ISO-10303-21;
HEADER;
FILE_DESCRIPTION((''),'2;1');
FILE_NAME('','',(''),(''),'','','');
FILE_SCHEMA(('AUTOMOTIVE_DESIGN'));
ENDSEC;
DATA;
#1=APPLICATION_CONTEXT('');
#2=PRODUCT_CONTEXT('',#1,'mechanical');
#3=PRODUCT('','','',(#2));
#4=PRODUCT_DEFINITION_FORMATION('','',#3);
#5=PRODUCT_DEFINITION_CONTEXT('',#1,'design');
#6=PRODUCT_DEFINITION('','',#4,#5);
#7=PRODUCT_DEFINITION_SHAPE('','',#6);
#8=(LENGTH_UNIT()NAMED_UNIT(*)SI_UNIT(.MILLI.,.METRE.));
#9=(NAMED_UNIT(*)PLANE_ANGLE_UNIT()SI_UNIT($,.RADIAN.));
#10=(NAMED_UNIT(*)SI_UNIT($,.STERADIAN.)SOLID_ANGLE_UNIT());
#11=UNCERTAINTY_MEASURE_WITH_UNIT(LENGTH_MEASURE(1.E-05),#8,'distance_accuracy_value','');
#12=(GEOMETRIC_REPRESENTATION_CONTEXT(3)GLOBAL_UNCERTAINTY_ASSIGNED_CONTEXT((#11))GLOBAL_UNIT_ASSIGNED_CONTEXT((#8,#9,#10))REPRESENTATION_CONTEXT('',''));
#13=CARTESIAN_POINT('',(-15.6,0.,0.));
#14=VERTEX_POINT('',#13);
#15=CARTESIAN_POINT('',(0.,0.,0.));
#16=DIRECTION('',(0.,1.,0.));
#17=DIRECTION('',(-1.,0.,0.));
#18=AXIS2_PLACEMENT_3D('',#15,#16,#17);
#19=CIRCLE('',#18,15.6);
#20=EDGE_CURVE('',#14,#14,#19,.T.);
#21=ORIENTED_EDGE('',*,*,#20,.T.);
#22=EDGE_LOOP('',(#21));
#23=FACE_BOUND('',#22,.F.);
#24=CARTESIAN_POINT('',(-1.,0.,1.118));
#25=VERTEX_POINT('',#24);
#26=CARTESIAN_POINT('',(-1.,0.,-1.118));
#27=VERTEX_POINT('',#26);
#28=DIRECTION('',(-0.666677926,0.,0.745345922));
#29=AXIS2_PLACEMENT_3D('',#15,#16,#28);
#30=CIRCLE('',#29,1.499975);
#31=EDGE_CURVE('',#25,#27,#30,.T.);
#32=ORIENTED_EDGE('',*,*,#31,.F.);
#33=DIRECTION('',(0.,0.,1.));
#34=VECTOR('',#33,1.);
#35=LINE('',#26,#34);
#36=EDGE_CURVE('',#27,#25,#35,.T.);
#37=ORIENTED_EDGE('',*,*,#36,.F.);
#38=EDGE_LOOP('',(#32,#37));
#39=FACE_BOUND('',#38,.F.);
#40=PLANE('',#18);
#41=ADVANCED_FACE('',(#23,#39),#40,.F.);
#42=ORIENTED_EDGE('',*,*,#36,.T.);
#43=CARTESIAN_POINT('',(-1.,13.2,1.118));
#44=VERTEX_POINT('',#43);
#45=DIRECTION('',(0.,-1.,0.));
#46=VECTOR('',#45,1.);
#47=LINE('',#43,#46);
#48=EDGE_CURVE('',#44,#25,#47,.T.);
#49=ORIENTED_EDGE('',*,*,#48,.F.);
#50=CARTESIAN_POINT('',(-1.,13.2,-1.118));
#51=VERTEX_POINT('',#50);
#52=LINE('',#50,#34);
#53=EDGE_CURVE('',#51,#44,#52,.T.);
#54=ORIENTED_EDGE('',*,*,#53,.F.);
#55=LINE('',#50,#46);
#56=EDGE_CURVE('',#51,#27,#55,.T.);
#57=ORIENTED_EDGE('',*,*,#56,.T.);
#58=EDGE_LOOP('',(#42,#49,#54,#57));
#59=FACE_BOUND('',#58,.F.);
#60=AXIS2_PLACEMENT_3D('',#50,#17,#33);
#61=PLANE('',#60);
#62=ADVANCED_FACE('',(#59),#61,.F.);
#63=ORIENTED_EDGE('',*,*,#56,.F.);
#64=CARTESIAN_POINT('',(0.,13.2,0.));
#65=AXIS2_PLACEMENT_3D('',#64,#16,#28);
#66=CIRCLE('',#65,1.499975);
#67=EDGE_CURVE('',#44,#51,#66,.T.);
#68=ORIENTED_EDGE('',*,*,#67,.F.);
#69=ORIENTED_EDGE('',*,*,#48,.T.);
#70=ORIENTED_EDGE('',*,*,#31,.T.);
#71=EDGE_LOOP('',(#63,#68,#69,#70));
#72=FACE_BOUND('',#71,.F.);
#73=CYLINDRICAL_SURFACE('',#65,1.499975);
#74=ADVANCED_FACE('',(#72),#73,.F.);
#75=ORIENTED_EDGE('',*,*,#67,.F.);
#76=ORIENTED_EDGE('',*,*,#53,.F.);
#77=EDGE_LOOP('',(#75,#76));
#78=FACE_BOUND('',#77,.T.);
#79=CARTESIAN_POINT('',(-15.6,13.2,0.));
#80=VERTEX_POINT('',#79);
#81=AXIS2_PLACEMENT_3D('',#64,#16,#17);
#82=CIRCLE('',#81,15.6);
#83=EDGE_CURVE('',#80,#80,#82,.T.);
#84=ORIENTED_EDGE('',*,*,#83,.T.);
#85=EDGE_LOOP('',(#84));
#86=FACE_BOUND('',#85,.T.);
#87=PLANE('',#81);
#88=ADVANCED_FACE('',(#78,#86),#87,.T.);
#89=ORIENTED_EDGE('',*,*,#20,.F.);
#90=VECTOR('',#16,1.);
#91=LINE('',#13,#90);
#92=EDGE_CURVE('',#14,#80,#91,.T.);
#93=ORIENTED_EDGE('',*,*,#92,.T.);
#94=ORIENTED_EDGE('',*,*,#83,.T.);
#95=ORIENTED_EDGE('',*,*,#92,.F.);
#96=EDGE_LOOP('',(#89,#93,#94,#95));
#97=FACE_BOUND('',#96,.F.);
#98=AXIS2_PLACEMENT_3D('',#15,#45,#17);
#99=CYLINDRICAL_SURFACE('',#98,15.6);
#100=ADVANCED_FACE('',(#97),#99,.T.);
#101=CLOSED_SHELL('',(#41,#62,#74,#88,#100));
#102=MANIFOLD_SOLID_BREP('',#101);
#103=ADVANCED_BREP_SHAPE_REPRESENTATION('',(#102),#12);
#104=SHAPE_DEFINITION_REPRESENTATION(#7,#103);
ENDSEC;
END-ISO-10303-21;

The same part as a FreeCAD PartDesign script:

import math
import FreeCAD as App
import Part
import Sketcher

V = App.Vector
Q = App.Units.Quantity

doc = App.newDocument("Part")
params = doc.addObject("Spreadsheet::Sheet", "Params")
for row, (alias, value) in enumerate([
    ("sketch1_diameter", "31.2 mm"),
    ("pad1_length", "13.2 mm"),
    ("sketch2_radius", "1.5 mm"),
    ("pocket1_length", "13.2 mm"),
], start=1):
    params.set(f"A{row}", alias)
    params.set(f"B{row}", "=" + value)
    params.setAlias(f"B{row}", alias)

body = doc.addObject("PartDesign::Body", "Body")

sketch1 = body.newObject("Sketcher::SketchObject", "Sketch")
sketch1.AttachmentSupport = (doc.getObject("XZ_Plane"), [""])
sketch1.MapMode = "FlatFace"
sketch1.addGeometry(Part.Circle(V(0, 0, 0), V(0, 0, 1), 15.6), False)
sketch1.addConstraint([
    Sketcher.Constraint("Coincident", 0, 3, -1, 1),
    Sketcher.Constraint("Diameter", 0, Q("31.2 mm")),
])
sketch1.setExpression("Constraints[1]", "Params.sketch1_diameter")
pad1 = body.newObject("PartDesign::Pad", "Pad")
pad1.Profile = sketch1
pad1.setExpression("Length", "Params.pad1_length")
pad1.Reversed = True

sketch2 = body.newObject("Sketcher::SketchObject", "Sketch001")
sketch2.AttachmentSupport = (doc.getObject("XZ_Plane"), [""])
sketch2.MapMode = "FlatFace"
sketch2.AttachmentOffset = App.Placement(V(0, 0, -13.2), App.Rotation())
sketch2.addGeometry([
    Part.LineSegment(V(-1, -1.118, 0), V(-1, 1.118, 0)),
    Part.ArcOfCircle(Part.Circle(V(0, 0, 0), V(0, 0, 1), 1.499975), math.radians(-131.81118), math.radians(131.81118)),
], False)
sketch2.addConstraint([
    Sketcher.Constraint("Coincident", 0, 1, 1, 1),
    Sketcher.Constraint("Coincident", 1, 2, 0, 2),
    Sketcher.Constraint("Vertical", 0),
    Sketcher.Constraint("Coincident", 1, 3, -1, 1),
    Sketcher.Constraint("Radius", 1, Q("1.5 mm")),
    Sketcher.Constraint("DistanceX", 0, 1, -1, 1, Q("1 mm")),
])
sketch2.setExpression("Constraints[4]", "Params.sketch2_radius")
pocket1 = body.newObject("PartDesign::Pocket", "Pocket")
pocket1.Profile = sketch2
pocket1.setExpression("Length", "Params.pocket1_length")
pocket1.Reversed = True

doc.recompute()
